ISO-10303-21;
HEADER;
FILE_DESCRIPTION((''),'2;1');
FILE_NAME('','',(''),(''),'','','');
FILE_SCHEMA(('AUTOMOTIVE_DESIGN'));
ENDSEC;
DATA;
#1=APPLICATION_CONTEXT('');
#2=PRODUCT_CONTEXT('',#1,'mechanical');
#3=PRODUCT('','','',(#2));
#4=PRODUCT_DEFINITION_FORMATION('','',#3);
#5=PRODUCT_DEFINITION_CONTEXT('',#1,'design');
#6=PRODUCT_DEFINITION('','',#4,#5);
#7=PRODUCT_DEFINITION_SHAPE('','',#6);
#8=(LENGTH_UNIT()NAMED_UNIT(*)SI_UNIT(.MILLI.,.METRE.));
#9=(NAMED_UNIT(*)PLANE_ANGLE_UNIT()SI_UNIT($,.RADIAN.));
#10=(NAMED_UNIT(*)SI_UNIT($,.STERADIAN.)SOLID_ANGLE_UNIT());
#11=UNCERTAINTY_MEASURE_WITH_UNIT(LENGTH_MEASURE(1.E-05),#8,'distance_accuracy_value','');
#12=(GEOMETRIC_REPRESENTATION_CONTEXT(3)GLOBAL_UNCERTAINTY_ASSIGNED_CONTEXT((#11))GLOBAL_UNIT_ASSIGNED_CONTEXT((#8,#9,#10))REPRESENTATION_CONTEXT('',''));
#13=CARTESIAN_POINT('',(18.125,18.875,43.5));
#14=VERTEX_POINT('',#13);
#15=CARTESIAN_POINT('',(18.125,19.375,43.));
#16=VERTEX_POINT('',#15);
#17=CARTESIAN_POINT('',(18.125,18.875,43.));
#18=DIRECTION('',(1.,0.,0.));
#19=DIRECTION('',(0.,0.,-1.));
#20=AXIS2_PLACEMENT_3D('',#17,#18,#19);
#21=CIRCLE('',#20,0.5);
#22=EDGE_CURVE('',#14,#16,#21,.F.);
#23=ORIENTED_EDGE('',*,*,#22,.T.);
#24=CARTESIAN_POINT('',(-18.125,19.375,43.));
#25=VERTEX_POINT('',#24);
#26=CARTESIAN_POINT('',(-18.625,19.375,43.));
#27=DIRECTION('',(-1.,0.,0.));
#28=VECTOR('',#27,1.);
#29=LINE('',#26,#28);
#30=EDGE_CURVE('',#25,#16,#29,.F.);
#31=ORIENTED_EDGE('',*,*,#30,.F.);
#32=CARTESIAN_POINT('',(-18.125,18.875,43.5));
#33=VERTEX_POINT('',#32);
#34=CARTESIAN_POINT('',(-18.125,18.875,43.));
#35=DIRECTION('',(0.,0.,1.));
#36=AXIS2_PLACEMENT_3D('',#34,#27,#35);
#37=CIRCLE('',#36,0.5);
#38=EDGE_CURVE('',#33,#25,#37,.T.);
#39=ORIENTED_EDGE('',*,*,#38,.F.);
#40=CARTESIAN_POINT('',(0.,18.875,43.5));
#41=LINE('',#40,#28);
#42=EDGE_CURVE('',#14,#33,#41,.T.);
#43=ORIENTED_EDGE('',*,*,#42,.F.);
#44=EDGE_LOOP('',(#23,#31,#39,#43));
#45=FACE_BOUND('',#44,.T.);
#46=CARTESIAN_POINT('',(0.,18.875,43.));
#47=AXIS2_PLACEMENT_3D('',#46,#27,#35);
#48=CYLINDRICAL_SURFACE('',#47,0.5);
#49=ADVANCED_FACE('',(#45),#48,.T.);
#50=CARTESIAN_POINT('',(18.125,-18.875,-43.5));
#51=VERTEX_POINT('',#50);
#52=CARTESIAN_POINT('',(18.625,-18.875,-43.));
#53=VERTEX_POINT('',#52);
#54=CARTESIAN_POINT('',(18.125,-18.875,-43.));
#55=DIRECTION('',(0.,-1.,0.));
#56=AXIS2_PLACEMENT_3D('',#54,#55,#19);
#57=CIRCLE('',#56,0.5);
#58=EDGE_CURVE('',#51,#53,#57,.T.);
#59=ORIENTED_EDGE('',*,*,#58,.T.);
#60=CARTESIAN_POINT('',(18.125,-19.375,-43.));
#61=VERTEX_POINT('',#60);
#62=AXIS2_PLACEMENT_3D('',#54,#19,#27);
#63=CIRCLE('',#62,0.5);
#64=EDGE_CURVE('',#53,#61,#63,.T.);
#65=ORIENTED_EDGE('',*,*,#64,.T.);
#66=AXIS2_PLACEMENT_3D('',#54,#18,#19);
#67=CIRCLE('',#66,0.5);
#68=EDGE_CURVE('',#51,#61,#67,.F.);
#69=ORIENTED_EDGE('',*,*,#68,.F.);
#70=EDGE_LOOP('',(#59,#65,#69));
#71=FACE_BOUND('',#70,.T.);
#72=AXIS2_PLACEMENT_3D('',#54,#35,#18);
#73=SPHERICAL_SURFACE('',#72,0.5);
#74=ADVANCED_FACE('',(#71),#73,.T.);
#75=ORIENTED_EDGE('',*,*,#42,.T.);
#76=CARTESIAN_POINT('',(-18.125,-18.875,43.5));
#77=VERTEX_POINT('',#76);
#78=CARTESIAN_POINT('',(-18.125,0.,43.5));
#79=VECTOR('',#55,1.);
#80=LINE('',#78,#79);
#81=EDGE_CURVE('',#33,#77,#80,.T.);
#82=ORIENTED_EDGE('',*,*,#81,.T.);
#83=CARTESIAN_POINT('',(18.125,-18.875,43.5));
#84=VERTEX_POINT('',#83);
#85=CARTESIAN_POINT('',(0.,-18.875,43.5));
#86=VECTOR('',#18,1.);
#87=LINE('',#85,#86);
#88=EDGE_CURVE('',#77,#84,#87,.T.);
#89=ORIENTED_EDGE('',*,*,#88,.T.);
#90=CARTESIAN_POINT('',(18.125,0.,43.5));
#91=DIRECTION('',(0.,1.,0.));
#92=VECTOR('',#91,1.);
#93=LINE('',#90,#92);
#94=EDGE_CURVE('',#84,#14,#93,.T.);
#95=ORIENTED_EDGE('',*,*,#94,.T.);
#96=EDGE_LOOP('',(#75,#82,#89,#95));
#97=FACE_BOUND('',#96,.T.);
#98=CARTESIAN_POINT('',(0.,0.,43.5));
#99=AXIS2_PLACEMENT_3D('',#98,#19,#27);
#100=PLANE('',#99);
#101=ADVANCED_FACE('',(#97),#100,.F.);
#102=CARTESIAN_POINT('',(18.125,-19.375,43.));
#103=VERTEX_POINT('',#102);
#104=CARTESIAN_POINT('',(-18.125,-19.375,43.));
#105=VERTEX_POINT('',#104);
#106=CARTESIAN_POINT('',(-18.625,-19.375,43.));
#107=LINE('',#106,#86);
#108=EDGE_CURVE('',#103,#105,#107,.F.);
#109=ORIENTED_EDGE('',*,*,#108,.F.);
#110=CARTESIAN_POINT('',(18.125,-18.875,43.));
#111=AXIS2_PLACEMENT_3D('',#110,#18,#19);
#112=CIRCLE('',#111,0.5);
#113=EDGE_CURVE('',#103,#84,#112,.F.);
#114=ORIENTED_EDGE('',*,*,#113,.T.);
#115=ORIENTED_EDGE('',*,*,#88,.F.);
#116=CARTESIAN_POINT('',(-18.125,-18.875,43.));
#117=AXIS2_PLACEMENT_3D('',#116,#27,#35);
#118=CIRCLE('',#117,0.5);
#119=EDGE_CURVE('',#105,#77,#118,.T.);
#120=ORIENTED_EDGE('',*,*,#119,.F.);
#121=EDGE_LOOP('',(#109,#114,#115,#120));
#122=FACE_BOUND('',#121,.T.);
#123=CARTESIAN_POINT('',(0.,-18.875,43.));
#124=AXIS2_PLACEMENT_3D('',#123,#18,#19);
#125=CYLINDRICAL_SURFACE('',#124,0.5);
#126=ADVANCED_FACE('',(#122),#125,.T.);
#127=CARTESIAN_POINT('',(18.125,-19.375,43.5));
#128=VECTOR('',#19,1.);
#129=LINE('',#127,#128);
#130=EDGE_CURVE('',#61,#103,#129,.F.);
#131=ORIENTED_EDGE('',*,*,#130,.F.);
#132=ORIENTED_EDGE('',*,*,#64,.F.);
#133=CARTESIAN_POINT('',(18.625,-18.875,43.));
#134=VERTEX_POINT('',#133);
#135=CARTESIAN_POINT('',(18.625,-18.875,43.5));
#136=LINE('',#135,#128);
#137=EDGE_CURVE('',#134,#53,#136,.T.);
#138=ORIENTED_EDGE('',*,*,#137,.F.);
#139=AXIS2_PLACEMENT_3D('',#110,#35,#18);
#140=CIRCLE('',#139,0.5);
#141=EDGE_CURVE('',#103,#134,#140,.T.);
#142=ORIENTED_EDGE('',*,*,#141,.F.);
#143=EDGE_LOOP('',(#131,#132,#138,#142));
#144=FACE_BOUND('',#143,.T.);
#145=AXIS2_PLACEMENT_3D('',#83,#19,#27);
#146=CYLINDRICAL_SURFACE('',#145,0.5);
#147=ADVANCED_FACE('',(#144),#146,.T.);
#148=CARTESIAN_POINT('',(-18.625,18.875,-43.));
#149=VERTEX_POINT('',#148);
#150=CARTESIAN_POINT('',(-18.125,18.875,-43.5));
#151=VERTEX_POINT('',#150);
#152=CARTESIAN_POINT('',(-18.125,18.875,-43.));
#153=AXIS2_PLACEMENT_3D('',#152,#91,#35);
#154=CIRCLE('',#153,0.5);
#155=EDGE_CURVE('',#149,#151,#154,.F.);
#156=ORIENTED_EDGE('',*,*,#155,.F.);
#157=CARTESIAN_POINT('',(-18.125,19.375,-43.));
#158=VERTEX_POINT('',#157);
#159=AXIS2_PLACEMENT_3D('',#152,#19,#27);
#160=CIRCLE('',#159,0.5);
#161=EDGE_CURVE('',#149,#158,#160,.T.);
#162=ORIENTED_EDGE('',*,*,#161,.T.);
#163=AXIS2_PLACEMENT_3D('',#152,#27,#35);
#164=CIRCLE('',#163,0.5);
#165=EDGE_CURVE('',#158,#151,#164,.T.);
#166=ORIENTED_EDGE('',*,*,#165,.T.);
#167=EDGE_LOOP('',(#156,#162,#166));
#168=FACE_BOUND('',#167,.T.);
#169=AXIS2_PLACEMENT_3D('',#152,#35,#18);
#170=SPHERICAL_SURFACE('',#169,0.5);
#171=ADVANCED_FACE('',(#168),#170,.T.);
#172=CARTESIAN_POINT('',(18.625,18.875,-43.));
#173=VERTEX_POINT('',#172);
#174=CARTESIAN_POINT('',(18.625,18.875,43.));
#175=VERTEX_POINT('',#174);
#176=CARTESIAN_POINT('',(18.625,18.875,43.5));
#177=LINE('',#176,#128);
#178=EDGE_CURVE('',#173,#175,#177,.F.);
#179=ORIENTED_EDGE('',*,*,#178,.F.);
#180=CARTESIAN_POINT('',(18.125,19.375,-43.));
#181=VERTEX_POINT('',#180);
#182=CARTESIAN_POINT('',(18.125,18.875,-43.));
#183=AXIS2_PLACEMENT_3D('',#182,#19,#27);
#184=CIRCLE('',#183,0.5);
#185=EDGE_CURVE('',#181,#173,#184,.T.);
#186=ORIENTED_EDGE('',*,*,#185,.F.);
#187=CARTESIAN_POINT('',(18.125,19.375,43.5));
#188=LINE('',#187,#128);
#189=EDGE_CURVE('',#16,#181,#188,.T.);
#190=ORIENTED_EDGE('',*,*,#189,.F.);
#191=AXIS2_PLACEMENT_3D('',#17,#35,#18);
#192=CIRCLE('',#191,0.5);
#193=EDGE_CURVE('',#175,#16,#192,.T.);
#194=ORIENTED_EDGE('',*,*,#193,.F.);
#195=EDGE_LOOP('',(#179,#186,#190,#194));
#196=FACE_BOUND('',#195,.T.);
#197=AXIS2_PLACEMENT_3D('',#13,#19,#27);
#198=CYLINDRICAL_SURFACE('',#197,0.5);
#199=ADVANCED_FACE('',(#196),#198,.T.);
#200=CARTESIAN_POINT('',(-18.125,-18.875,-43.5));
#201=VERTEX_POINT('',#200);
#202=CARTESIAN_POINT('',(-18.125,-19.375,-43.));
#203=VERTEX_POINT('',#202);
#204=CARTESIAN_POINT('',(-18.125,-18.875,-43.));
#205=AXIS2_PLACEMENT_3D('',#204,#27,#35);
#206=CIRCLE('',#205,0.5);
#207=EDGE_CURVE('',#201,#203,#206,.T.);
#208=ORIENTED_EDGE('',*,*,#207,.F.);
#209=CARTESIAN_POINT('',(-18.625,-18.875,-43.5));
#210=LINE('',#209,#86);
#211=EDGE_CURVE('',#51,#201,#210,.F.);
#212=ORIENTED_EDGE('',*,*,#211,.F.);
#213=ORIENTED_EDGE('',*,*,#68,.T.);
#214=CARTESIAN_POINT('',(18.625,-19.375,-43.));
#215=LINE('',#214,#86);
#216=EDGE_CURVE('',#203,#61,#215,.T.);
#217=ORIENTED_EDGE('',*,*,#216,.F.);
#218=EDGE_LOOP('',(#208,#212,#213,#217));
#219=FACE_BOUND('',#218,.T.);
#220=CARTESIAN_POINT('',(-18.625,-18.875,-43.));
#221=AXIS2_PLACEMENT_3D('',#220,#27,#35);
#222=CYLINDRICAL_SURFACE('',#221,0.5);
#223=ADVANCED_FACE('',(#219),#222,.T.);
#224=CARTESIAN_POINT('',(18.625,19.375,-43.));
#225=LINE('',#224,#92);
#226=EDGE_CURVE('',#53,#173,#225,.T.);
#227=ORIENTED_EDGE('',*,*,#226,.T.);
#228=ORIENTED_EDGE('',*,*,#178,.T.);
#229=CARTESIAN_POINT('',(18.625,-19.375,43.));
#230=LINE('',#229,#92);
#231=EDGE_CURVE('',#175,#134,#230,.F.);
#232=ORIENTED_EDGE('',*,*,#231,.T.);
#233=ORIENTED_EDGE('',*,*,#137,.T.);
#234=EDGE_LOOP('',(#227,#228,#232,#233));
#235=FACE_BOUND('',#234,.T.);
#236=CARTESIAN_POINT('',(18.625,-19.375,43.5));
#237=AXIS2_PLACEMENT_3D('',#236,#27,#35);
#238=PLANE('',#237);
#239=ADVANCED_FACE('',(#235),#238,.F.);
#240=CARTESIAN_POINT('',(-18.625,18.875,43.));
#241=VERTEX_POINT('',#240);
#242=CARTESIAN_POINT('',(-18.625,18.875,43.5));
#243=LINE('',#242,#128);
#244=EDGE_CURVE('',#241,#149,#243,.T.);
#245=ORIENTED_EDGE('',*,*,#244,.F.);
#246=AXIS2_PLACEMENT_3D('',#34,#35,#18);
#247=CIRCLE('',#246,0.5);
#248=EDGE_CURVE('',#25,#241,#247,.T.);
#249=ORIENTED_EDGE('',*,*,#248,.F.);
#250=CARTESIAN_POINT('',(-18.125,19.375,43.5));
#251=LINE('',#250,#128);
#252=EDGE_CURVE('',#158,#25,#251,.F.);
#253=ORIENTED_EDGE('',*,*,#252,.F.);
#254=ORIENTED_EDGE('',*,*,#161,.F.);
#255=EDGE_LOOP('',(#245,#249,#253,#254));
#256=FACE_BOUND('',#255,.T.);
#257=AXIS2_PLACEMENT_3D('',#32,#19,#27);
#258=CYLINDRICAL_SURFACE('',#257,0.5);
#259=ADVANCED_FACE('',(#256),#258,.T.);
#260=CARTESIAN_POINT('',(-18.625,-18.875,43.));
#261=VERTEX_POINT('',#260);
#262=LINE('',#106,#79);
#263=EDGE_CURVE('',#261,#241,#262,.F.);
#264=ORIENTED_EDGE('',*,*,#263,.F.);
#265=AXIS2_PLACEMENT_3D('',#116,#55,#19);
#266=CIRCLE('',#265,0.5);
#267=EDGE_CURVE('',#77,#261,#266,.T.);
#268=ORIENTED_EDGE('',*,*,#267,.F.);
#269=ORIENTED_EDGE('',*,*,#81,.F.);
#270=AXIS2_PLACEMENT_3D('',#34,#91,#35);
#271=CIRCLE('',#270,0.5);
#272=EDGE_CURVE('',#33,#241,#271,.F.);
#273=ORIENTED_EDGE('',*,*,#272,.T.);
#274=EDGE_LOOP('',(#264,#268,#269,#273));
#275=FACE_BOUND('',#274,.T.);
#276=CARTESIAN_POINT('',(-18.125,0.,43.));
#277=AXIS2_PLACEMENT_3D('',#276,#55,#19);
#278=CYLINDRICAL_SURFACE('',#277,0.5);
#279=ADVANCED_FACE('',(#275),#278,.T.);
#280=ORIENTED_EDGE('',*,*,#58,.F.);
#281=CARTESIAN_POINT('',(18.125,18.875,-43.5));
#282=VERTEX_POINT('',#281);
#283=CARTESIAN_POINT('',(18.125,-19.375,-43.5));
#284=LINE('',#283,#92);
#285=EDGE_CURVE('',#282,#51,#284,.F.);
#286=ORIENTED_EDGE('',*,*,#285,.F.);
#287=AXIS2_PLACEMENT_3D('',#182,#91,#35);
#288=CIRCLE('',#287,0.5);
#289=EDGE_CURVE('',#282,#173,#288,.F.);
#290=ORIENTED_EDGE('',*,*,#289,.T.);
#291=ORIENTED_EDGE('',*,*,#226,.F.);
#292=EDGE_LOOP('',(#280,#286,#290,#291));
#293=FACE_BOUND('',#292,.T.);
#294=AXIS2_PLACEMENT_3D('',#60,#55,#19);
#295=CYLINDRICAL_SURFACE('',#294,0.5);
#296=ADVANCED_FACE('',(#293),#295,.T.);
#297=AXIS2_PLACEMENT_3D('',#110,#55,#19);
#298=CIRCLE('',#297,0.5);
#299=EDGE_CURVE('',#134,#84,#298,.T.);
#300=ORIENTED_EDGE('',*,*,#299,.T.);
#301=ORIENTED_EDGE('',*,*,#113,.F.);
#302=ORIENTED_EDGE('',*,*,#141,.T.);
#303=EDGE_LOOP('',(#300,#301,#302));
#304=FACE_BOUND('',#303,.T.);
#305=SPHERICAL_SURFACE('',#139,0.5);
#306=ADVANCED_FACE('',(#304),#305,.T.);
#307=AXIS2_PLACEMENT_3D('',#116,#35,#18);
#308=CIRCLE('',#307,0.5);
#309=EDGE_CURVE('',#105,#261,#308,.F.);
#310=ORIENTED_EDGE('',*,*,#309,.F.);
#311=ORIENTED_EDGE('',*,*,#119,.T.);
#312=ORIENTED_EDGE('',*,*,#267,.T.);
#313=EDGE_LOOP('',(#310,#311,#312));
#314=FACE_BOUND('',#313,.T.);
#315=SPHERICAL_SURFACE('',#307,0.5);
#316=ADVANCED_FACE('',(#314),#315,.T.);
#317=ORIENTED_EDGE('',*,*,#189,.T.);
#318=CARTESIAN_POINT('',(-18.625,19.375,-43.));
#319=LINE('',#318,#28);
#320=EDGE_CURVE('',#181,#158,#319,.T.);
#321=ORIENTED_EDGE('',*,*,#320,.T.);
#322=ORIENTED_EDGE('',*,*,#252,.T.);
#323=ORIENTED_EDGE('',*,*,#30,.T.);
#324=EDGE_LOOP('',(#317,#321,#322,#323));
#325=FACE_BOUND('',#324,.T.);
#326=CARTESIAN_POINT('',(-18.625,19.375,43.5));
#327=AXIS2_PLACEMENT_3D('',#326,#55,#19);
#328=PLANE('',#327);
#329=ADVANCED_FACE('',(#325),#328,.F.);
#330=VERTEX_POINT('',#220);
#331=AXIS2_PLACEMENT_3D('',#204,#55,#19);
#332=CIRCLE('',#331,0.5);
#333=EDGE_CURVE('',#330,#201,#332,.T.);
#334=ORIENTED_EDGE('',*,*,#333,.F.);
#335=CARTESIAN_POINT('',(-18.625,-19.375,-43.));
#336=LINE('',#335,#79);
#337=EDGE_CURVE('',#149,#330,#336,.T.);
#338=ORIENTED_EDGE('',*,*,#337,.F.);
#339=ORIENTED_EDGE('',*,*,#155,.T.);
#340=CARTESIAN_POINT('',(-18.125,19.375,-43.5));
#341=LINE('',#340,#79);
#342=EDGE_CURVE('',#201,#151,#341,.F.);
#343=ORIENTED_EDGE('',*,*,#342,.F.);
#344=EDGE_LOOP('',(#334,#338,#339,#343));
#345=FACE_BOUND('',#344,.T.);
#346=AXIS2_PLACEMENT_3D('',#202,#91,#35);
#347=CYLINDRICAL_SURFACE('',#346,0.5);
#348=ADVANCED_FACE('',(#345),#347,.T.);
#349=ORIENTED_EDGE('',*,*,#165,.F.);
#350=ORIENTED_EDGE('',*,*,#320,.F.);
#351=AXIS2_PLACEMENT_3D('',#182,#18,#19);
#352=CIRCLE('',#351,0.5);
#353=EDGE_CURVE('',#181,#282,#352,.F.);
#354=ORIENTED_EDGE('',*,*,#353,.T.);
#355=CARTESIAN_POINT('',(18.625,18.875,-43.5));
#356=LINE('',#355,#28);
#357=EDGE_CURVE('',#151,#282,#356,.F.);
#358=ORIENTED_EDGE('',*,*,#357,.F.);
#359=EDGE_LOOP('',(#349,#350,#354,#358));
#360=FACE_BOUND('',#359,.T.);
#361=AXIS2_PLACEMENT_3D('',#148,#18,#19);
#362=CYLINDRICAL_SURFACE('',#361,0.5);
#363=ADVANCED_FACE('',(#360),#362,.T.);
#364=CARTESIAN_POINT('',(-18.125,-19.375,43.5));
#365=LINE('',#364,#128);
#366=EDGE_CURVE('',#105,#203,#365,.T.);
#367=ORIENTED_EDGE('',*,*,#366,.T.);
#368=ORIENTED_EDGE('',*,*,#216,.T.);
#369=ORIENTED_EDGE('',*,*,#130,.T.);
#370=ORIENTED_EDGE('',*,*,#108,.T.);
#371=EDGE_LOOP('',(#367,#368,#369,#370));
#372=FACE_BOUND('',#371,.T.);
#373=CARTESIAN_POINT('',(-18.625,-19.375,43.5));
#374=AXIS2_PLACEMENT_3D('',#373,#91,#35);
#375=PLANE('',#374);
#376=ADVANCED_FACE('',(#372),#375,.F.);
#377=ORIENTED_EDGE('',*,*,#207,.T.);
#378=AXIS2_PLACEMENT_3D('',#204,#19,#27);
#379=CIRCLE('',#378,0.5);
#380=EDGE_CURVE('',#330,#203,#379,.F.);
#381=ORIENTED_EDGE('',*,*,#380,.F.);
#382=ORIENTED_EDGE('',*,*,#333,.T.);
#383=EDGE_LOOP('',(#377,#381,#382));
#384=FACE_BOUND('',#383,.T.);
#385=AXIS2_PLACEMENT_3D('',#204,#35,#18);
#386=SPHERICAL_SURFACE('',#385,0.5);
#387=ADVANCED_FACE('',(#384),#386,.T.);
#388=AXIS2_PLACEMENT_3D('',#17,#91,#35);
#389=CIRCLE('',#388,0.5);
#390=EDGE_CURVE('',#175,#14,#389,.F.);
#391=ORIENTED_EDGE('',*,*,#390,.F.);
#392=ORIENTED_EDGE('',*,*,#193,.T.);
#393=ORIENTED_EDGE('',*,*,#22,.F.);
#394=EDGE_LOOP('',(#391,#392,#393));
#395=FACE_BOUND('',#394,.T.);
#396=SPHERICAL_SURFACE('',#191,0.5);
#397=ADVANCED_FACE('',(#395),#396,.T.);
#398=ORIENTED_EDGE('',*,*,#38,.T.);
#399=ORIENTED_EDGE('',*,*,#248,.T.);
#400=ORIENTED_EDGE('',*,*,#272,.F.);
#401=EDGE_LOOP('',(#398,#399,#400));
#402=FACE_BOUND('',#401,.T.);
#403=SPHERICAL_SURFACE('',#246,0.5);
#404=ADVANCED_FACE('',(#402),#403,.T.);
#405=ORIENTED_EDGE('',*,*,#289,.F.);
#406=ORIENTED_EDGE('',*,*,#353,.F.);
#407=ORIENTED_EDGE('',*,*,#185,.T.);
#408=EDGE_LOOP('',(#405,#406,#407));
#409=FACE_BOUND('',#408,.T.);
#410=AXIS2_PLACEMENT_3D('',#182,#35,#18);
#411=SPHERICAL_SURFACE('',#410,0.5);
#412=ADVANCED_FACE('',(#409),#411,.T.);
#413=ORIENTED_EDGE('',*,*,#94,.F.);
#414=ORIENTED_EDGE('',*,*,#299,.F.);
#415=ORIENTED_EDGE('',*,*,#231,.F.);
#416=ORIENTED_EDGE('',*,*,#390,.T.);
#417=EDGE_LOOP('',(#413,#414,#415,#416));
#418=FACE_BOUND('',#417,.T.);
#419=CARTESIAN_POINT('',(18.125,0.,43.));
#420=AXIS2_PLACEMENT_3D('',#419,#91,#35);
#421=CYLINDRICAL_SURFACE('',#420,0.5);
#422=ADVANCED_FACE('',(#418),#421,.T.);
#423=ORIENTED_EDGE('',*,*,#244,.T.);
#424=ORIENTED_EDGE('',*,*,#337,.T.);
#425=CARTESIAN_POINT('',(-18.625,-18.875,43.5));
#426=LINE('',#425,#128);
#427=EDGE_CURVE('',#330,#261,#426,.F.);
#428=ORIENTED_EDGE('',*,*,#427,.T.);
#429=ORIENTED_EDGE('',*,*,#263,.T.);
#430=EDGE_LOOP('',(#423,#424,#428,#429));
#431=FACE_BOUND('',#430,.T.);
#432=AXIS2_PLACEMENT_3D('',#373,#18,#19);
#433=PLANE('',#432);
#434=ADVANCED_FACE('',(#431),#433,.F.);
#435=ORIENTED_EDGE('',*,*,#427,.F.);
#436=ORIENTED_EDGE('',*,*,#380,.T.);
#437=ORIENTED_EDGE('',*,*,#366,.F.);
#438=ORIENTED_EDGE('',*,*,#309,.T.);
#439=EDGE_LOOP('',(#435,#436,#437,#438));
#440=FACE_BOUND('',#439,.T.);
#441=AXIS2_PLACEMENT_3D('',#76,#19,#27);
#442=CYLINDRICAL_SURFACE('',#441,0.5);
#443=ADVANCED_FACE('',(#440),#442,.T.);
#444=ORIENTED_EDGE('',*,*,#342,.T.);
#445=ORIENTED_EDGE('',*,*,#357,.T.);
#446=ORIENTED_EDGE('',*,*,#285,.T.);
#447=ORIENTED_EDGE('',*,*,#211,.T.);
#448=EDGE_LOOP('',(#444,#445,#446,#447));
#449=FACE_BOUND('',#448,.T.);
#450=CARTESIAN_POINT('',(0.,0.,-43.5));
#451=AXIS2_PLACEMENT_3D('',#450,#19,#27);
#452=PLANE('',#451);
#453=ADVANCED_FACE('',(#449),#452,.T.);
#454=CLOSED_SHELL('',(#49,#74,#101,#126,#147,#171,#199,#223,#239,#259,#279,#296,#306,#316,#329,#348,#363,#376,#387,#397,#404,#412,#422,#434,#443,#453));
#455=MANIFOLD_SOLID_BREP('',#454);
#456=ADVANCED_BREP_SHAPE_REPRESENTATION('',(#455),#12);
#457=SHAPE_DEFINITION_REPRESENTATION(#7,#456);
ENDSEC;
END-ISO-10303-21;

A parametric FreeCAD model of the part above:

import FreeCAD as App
import Part
import Sketcher

doc = App.newDocument("Part")
body = doc.addObject("PartDesign::Body", "Body")

# Sketch on XY plane
sketch1 = doc.addObject("Sketcher::SketchObject", "Sketch")
body.addObject(sketch1)
sketch1.AttachmentSupport = (doc.XY_Plane, [""])
sketch1.MapMode = "FlatFace"
sketch1.addGeometry(Part.LineSegment(App.Vector(-19, 19, 0), App.Vector(-19, -19, 0)), False)
sketch1.addGeometry(Part.LineSegment(App.Vector(-19, -19, 0), App.Vector(19, -19, 0)), False)
sketch1.addGeometry(Part.LineSegment(App.Vector(19, -19, 0), App.Vector(19, 19, 0)), False)
sketch1.addGeometry(Part.LineSegment(App.Vector(19, 19, 0), App.Vector(-19, 19, 0)), False)
sketch1.addConstraint(Sketcher.Constraint("Coincident", 0, 2, 1, 1))
sketch1.addConstraint(Sketcher.Constraint("Coincident", 1, 2, 2, 1))
sketch1.addConstraint(Sketcher.Constraint("Coincident", 2, 2, 3, 1))
sketch1.addConstraint(Sketcher.Constraint("Coincident", 3, 2, 0, 1))
sketch1.addConstraint(Sketcher.Constraint("Vertical", 0))
sketch1.addConstraint(Sketcher.Constraint("Horizontal", 1))
sketch1.addConstraint(Sketcher.Constraint("Vertical", 2))
sketch1.addConstraint(Sketcher.Constraint("Horizontal", 3))
sketch1.addConstraint(Sketcher.Constraint("Symmetric", 0, 2, 2, 2, -1, 1))
sketch1.addConstraint(Sketcher.Constraint("DistanceX", 1, 1, 1, 2, 37.25))
sketch1.addConstraint(Sketcher.Constraint("DistanceY", 0, 2, 0, 1, 38.75))
pad1 = doc.addObject("PartDesign::Pad", "Pad")
body.addObject(pad1)
pad1.Profile = sketch1
pad1.Length = 87
pad1.Midplane = True
doc.recompute()

fillet = doc.addObject("PartDesign::Fillet", "Fillet")
body.addObject(fillet)
fillet.Base = (pad1, ["Edge1"])
fillet.UseAllEdges = True
fillet.Radius = 0.5

doc.recompute()
